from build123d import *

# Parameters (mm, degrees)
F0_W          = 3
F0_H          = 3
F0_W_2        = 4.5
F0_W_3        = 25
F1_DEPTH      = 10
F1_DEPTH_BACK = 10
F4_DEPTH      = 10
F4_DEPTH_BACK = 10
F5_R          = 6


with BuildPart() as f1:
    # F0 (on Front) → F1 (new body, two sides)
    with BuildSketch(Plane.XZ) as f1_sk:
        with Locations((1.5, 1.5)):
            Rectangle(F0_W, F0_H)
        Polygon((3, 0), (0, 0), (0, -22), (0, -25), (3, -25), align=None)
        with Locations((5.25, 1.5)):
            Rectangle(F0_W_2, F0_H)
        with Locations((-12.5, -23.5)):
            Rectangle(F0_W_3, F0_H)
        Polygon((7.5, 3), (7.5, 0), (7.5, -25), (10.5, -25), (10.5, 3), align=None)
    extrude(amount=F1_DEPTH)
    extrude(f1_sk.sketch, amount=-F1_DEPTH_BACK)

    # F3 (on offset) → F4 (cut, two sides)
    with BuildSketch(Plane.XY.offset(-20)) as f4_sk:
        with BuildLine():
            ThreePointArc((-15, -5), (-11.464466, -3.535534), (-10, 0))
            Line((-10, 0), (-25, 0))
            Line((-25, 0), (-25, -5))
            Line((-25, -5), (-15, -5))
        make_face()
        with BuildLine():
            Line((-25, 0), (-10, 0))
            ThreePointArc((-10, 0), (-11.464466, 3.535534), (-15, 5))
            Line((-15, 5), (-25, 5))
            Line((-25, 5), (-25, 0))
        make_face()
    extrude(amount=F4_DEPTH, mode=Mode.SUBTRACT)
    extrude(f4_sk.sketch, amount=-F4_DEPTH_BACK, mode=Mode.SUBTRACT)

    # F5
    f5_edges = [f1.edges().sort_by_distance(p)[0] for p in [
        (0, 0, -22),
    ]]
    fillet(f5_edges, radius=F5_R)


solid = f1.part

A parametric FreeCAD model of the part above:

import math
import FreeCAD as App
import Part
import Sketcher

V = App.Vector


def edges_at(feature, points):
    """Names of the edges that pass closest to the given points."""
    edges = feature.Shape.Edges
    near = lambda p: min(range(len(edges)), key=lambda i: edges[i].distToShape(Part.Vertex(*p))[0])
    return sorted({f"Edge{near(p) + 1}" for p in points})

doc = App.newDocument("Part")
body = doc.addObject("PartDesign::Body", "Body")

sketch1 = body.newObject("Sketcher::SketchObject", "Sketch")
sketch1.AttachmentSupport = (doc.getObject("XZ_Plane"), [""])
sketch1.MapMode = "FlatFace"
sketch1.addGeometry(Part.LineSegment(V(0, 3, 0), V(0, -22, 0)), False)
sketch1.addGeometry(Part.LineSegment(V(0, -22, 0), V(-25, -22, 0)), False)
sketch1.addGeometry(Part.LineSegment(V(-25, -22, 0), V(-25, -25, 0)), False)
sketch1.addGeometry(Part.LineSegment(V(-25, -25, 0), V(3, -25, 0)), False)
sketch1.addGeometry(Part.LineSegment(V(3, -25, 0), V(3, 0, 0)), False)
sketch1.addGeometry(Part.LineSegment(V(3, 0, 0), V(7.5, 0, 0)), False)
sketch1.addGeometry(Part.LineSegment(V(7.5, 0, 0), V(7.5, -25, 0)), False)
sketch1.addGeometry(Part.LineSegment(V(7.5, -25, 0), V(10.5, -25, 0)), False)
sketch1.addGeometry(Part.LineSegment(V(10.5, -25, 0), V(10.5, 3, 0)), False)
sketch1.addGeometry(Part.LineSegment(V(10.5, 3, 0), V(0, 3, 0)), False)
sketch1.addConstraint(Sketcher.Constraint("Coincident", 0, 2, 1, 1))
sketch1.addConstraint(Sketcher.Constraint("Coincident", 1, 2, 2, 1))
sketch1.addConstraint(Sketcher.Constraint("Coincident", 2, 2, 3, 1))
sketch1.addConstraint(Sketcher.Constraint("Coincident", 3, 2, 4, 1))
sketch1.addConstraint(Sketcher.Constraint("Coincident", 4, 2, 5, 1))
sketch1.addConstraint(Sketcher.Constraint("Coincident", 5, 2, 6, 1))
sketch1.addConstraint(Sketcher.Constraint("Coincident", 6, 2, 7, 1))
sketch1.addConstraint(Sketcher.Constraint("Coincident", 7, 2, 8, 1))
sketch1.addConstraint(Sketcher.Constraint("Coincident", 8, 2, 9, 1))
sketch1.addConstraint(Sketcher.Constraint("Coincident", 9, 2, 0, 1))
sketch1.addConstraint(Sketcher.Constraint("Vertical", 0))
sketch1.addConstraint(Sketcher.Constraint("Horizontal", 1))
sketch1.addConstraint(Sketcher.Constraint("Vertical", 2))
sketch1.addConstraint(Sketcher.Constraint("Horizontal", 3))
sketch1.addConstraint(Sketcher.Constraint("Vertical", 4))
sketch1.addConstraint(Sketcher.Constraint("Horizontal", 5))
sketch1.addConstraint(Sketcher.Constraint("Vertical", 6))
sketch1.addConstraint(Sketcher.Constraint("Horizontal", 7))
sketch1.addConstraint(Sketcher.Constraint("Vertical", 8))
sketch1.addConstraint(Sketcher.Constraint("Horizontal", 9))
sketch1.addConstraint(Sketcher.Constraint("PointOnObject", 0, 2, -2))
sketch1.addConstraint(Sketcher.Constraint("PointOnObject", 4, 2, -1))
sketch1.addConstraint(Sketcher.Constraint("Horizontal", 3, 2, 6, 2))
sketch1.addConstraint(Sketcher.Constraint("Equal", 1, 0))
sketch1.addConstraint(Sketcher.Constraint("Equal", 7, 2))
sketch1.addConstraint(Sketcher.Constraint("Equal", 0, 4))
sketch1.addConstraint(Sketcher.Constraint("Equal", 3, 8))
sketch1.addConstraint(Sketcher.Constraint("DistanceX", 1, 2, 1, 1, 25.0))
sketch1.addConstraint(Sketcher.Constraint("DistanceX", 3, 1, 3, 2, 28.0))
sketch1.addConstraint(Sketcher.Constraint("DistanceX", 5, 1, 5, 2, 4.5))
pad1 = body.newObject("PartDesign::Pad", "Pad")
pad1.Profile = sketch1
pad1.Type = "TwoLengths"
pad1.Length = 10
pad1.Length2 = 10

sketch2 = body.newObject("Sketcher::SketchObject", "Sketch001")
sketch2.AttachmentSupport = (doc.getObject("XY_Plane"), [""])
sketch2.MapMode = "FlatFace"
sketch2.AttachmentOffset = App.Placement(V(0, 0, -20), App.Rotation())
sketch2.addGeometry(Part.ArcOfCircle(Part.Circle(V(-15, 0, 0), V(0, 0, 1), 5), math.radians(-90), math.radians(0)), False)
sketch2.addGeometry(Part.ArcOfCircle(Part.Circle(V(-15, 0, 0), V(0, 0, 1), 5), math.radians(0), math.radians(90)), False)
sketch2.addGeometry(Part.LineSegment(V(-15, 5, 0), V(-25, 5, 0)), False)
sketch2.addGeometry(Part.LineSegment(V(-25, 5, 0), V(-25, -5, 0)), False)
sketch2.addGeometry(Part.LineSegment(V(-25, -5, 0), V(-15, -5, 0)), False)
sketch2.addConstraint(Sketcher.Constraint("Tangent", 0, 2, 1, 1))
sketch2.addConstraint(Sketcher.Constraint("Tangent", 1, 2, 2, 1))
sketch2.addConstraint(Sketcher.Constraint("Coincident", 2, 2, 3, 1))
sketch2.addConstraint(Sketcher.Constraint("Coincident", 3, 2, 4, 1))
sketch2.addConstraint(Sketcher.Constraint("Tangent", 4, 2, 0, 1))
sketch2.addConstraint(Sketcher.Constraint("Horizontal", 2))
sketch2.addConstraint(Sketcher.Constraint("Vertical", 3))
sketch2.addConstraint(Sketcher.Constraint("Horizontal", 4))
sketch2.addConstraint(Sketcher.Constraint("Equal", 0, 1))
sketch2.addConstraint(Sketcher.Constraint("PointOnObject", 0, 3, -1))
sketch2.addConstraint(Sketcher.Constraint("PointOnObject", 0, 2, -1))
sketch2.addConstraint(Sketcher.Constraint("Equal", 4, 3))
sketch2.addConstraint(Sketcher.Constraint("Radius", 0, 5.0))
sketch2.addConstraint(Sketcher.Constraint("DistanceX", 0, 3, -1, 1, 15.0))
pocket1 = body.newObject("PartDesign::Pocket", "Pocket")
pocket1.Profile = sketch2
pocket1.Type = "ThroughAll"
pocket1.Midplane = True
doc.recompute()

fillet = body.newObject("PartDesign::Fillet", "Fillet")
fillet.Base = (pocket1, edges_at(pocket1, [(0, 0, -22)]))
fillet.Radius = 6

doc.recompute()
